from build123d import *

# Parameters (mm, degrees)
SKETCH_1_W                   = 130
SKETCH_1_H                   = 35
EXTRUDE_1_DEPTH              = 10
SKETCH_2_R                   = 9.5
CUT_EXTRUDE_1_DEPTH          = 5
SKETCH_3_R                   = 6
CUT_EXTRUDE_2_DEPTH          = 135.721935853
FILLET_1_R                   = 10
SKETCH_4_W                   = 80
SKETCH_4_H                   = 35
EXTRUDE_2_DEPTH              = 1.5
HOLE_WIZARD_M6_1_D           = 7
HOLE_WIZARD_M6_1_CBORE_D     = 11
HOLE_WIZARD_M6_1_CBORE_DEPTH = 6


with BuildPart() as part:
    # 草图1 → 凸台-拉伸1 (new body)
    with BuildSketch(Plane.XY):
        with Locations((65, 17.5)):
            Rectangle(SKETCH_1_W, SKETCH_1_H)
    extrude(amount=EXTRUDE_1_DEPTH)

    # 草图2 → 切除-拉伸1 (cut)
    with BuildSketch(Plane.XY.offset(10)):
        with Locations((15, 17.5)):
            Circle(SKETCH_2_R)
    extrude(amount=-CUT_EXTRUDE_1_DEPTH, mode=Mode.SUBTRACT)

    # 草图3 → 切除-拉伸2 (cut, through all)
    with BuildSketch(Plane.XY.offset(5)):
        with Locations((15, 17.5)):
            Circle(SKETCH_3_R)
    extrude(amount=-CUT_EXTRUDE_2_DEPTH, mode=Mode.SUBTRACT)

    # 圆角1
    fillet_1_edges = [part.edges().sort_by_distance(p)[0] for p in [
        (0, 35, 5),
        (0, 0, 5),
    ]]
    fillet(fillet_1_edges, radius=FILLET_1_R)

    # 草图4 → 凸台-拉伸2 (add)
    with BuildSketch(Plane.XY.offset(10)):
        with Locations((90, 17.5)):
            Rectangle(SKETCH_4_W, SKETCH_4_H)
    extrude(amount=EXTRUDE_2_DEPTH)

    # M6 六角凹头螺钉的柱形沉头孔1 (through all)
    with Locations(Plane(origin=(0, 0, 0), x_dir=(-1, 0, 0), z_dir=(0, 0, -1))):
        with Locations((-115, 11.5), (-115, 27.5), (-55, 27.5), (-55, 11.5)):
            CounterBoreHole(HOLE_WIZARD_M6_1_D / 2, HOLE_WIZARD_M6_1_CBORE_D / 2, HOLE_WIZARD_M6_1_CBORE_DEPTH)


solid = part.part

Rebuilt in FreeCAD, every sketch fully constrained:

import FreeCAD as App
import Part
import Sketcher
from FreeCAD import Vector
Q = App.Units.Quantity


def edges_at(feature, points):
    """Names of the edges that pass closest to the given points."""
    edges = feature.Shape.Edges
    near = lambda p: min(range(len(edges)), key=lambda i: edges[i].distToShape(Part.Vertex(*p))[0])
    return sorted({f"Edge{near(p) + 1}" for p in points})


def add_polygon(sketch, points):
    """Adds a closed chain of lines whose ends are joined by coincident constraints."""
    first, n = sketch.GeometryCount, len(points)
    for a, b in zip(points, points[1:] + points[:1]):
        sketch.addGeometry(Part.LineSegment(App.Vector(*a, 0), App.Vector(*b, 0)), False)
    for i in range(n):
        sketch.addConstraint(Sketcher.Constraint("Coincident", first + i, 2, first + (i + 1) % n, 1))

doc = App.newDocument("Part")
params = doc.addObject("Spreadsheet::Sheet", "Params")
for row, (alias, value) in enumerate([
    ("sketch1_width", "130 mm"),
    ("sketch1_height", "35 mm"),
    ("pad1_length", "10 mm"),
    ("sketch2_diameter", "19 mm"),
    ("pocket1_length", "5 mm"),
    ("sketch3_diameter", "12 mm"),
    ("fillet_radius", "10 mm"),
    ("sketch4_width", "80 mm"),
    ("sketch4_height", "35 mm"),
    ("pad2_length", "1.5 mm"),
    ("sketch5_diameter", "7 mm"),
    ("hole_diameter", "7 mm"),
    ("hole_cbore_diameter", "11 mm"),
    ("hole_cbore_depth", "6 mm"),
], start=1):
    params.set(f"A{row}", alias)
    params.set(f"B{row}", "=" + value)
    params.setAlias(f"B{row}", alias)

body = doc.addObject("PartDesign::Body", "Body")

# Sketch on XY plane
sketch1 = body.newObject("Sketcher::SketchObject", "Sketch")
sketch1.AttachmentSupport = (doc.getObject("XY_Plane"), [""])
sketch1.MapMode = "FlatFace"
add_polygon(sketch1, [(0, 35), (0, 0), (130, 0), (130, 35)])  # lines 0-3
sketch1.addConstraint([
    Sketcher.Constraint("Vertical", 0),
    Sketcher.Constraint("Horizontal", 1),
    Sketcher.Constraint("Vertical", 2),
    Sketcher.Constraint("Horizontal", 3),
    Sketcher.Constraint("Coincident", 0, 2, -1, 1),
    Sketcher.Constraint("DistanceX", 1, 1, 1, 2, Q("130 mm")),
    Sketcher.Constraint("DistanceY", 0, 2, 0, 1, Q("35 mm")),
])
sketch1.setExpression("Constraints[9]", "Params.sketch1_width")
sketch1.setExpression("Constraints[10]", "Params.sketch1_height")
pad1 = body.newObject("PartDesign::Pad", "Pad")
pad1.Profile = sketch1
pad1.setExpression("Length", "Params.pad1_length")

# Sketch on XY plane
sketch2 = body.newObject("Sketcher::SketchObject", "Sketch001")
sketch2.AttachmentSupport = (doc.getObject("XY_Plane"), [""])
sketch2.MapMode = "FlatFace"
sketch2.AttachmentOffset = App.Placement(Vector(0, 0, 10), App.Rotation())
sketch2.addGeometry(Part.Circle(Vector(15, 18, 0), Vector(0, 0, 1), 10), False)
sketch2.addConstraint([
    Sketcher.Constraint("Diameter", 0, Q("19 mm")),
    Sketcher.Constraint("DistanceX", -1, 1, 0, 3, Q("15 mm")),
    Sketcher.Constraint("DistanceY", -1, 1, 0, 3, Q("17.5 mm")),
])
sketch2.setExpression("Constraints[0]", "Params.sketch2_diameter")
pocket1 = body.newObject("PartDesign::Pocket", "Pocket")
pocket1.Profile = sketch2
pocket1.setExpression("Length", "Params.pocket1_length")

# Sketch on XY plane
sketch3 = body.newObject("Sketcher::SketchObject", "Sketch002")
sketch3.AttachmentSupport = (doc.getObject("XY_Plane"), [""])
sketch3.MapMode = "FlatFace"
sketch3.AttachmentOffset = App.Placement(Vector(0, 0, 5), App.Rotation())
sketch3.addGeometry(Part.Circle(Vector(15, 18, 0), Vector(0, 0, 1), 6), False)
sketch3.addConstraint([
    Sketcher.Constraint("Diameter", 0, Q("12 mm")),
    Sketcher.Constraint("DistanceX", -1, 1, 0, 3, Q("15 mm")),
    Sketcher.Constraint("DistanceY", -1, 1, 0, 3, Q("17.5 mm")),
])
sketch3.setExpression("Constraints[0]", "Params.sketch3_diameter")
pocket2 = body.newObject("PartDesign::Pocket", "Pocket001")
pocket2.Profile = sketch3
pocket2.Type = "ThroughAll"
doc.recompute()

fillet = body.newObject("PartDesign::Fillet", "Fillet")
fillet.Base = (pocket2, edges_at(pocket2, [(0, 35, 5), (0, 0, 5)]))
fillet.setExpression("Radius", "Params.fillet_radius")

# Sketch on XY plane
sketch4 = body.newObject("Sketcher::SketchObject", "Sketch003")
sketch4.AttachmentSupport = (doc.getObject("XY_Plane"), [""])
sketch4.MapMode = "FlatFace"
sketch4.AttachmentOffset = App.Placement(Vector(0, 0, 10), App.Rotation())
add_polygon(sketch4, [(50, 35), (50, 0), (130, 0), (130, 35)])  # lines 0-3
sketch4.addConstraint([
    Sketcher.Constraint("Vertical", 0),
    Sketcher.Constraint("Horizontal", 1),
    Sketcher.Constraint("Vertical", 2),
    Sketcher.Constraint("Horizontal", 3),
    Sketcher.Constraint("PointOnObject", 0, 2, -1),
    Sketcher.Constraint("DistanceX", 1, 1, 1, 2, Q("80 mm")),
    Sketcher.Constraint("DistanceY", 0, 2, 0, 1, Q("35 mm")),
    Sketcher.Constraint("DistanceX", -1, 1, 0, 2, Q("50 mm")),
])
sketch4.setExpression("Constraints[9]", "Params.sketch4_width")
sketch4.setExpression("Constraints[10]", "Params.sketch4_height")
pad2 = body.newObject("PartDesign::Pad", "Pad001")
pad2.Profile = sketch4
pad2.setExpression("Length", "Params.pad2_length")

# Sketch on XY plane
sketch5 = body.newObject("Sketcher::SketchObject", "Sketch004")
sketch5.AttachmentSupport = (doc.getObject("XY_Plane"), [""])
sketch5.MapMode = "FlatFace"
sketch5.addGeometry([
    Part.Circle(Vector(115, 11.5, 0), Vector(0, 0, 1), 3.5),
    Part.Circle(Vector(115, 27.5, 0), Vector(0, 0, 1), 3.5),
    Part.Circle(Vector(55, 27.5, 0), Vector(0, 0, 1), 3.5),
    Part.Circle(Vector(55, 11.5, 0), Vector(0, 0, 1), 3.5),
], False)
sketch5.addConstraint([
    Sketcher.Constraint("Equal", 0, 1),
    Sketcher.Constraint("Equal", 1, 2),
    Sketcher.Constraint("Equal", 2, 3),
    Sketcher.Constraint("Horizontal", 1, 3, 2, 3),
    Sketcher.Constraint("Horizontal", 0, 3, 3, 3),
    Sketcher.Constraint("Vertical", 0, 3, 1, 3),
    Sketcher.Constraint("Vertical", 2, 3, 3, 3),
    Sketcher.Constraint("Diameter", 0, Q("7 mm")),
    Sketcher.Constraint("DistanceX", -1, 1, 0, 3, Q("115 mm")),
    Sketcher.Constraint("DistanceX", -1, 1, 2, 3, Q("55 mm")),
    Sketcher.Constraint("DistanceY", 0, 3, 1, 3, Q("16 mm")),
    Sketcher.Constraint("DistanceY", -1, 1, 0, 3, Q("11.5 mm")),
])
sketch5.setExpression("Constraints[7]", "Params.sketch5_diameter")
doc.recompute()
hole = body.newObject("PartDesign::Hole", "Hole")
hole.Profile = sketch5
hole.ThreadType = "None"
hole.setExpression("Diameter", "Params.hole_diameter")
hole.DepthType = "ThroughAll"
hole.HoleCutType = "Counterbore"
hole.setExpression("HoleCutDiameter", "Params.hole_cbore_diameter")
hole.setExpression("HoleCutDepth", "Params.hole_cbore_depth")
hole.Reversed = True

doc.recompute()
